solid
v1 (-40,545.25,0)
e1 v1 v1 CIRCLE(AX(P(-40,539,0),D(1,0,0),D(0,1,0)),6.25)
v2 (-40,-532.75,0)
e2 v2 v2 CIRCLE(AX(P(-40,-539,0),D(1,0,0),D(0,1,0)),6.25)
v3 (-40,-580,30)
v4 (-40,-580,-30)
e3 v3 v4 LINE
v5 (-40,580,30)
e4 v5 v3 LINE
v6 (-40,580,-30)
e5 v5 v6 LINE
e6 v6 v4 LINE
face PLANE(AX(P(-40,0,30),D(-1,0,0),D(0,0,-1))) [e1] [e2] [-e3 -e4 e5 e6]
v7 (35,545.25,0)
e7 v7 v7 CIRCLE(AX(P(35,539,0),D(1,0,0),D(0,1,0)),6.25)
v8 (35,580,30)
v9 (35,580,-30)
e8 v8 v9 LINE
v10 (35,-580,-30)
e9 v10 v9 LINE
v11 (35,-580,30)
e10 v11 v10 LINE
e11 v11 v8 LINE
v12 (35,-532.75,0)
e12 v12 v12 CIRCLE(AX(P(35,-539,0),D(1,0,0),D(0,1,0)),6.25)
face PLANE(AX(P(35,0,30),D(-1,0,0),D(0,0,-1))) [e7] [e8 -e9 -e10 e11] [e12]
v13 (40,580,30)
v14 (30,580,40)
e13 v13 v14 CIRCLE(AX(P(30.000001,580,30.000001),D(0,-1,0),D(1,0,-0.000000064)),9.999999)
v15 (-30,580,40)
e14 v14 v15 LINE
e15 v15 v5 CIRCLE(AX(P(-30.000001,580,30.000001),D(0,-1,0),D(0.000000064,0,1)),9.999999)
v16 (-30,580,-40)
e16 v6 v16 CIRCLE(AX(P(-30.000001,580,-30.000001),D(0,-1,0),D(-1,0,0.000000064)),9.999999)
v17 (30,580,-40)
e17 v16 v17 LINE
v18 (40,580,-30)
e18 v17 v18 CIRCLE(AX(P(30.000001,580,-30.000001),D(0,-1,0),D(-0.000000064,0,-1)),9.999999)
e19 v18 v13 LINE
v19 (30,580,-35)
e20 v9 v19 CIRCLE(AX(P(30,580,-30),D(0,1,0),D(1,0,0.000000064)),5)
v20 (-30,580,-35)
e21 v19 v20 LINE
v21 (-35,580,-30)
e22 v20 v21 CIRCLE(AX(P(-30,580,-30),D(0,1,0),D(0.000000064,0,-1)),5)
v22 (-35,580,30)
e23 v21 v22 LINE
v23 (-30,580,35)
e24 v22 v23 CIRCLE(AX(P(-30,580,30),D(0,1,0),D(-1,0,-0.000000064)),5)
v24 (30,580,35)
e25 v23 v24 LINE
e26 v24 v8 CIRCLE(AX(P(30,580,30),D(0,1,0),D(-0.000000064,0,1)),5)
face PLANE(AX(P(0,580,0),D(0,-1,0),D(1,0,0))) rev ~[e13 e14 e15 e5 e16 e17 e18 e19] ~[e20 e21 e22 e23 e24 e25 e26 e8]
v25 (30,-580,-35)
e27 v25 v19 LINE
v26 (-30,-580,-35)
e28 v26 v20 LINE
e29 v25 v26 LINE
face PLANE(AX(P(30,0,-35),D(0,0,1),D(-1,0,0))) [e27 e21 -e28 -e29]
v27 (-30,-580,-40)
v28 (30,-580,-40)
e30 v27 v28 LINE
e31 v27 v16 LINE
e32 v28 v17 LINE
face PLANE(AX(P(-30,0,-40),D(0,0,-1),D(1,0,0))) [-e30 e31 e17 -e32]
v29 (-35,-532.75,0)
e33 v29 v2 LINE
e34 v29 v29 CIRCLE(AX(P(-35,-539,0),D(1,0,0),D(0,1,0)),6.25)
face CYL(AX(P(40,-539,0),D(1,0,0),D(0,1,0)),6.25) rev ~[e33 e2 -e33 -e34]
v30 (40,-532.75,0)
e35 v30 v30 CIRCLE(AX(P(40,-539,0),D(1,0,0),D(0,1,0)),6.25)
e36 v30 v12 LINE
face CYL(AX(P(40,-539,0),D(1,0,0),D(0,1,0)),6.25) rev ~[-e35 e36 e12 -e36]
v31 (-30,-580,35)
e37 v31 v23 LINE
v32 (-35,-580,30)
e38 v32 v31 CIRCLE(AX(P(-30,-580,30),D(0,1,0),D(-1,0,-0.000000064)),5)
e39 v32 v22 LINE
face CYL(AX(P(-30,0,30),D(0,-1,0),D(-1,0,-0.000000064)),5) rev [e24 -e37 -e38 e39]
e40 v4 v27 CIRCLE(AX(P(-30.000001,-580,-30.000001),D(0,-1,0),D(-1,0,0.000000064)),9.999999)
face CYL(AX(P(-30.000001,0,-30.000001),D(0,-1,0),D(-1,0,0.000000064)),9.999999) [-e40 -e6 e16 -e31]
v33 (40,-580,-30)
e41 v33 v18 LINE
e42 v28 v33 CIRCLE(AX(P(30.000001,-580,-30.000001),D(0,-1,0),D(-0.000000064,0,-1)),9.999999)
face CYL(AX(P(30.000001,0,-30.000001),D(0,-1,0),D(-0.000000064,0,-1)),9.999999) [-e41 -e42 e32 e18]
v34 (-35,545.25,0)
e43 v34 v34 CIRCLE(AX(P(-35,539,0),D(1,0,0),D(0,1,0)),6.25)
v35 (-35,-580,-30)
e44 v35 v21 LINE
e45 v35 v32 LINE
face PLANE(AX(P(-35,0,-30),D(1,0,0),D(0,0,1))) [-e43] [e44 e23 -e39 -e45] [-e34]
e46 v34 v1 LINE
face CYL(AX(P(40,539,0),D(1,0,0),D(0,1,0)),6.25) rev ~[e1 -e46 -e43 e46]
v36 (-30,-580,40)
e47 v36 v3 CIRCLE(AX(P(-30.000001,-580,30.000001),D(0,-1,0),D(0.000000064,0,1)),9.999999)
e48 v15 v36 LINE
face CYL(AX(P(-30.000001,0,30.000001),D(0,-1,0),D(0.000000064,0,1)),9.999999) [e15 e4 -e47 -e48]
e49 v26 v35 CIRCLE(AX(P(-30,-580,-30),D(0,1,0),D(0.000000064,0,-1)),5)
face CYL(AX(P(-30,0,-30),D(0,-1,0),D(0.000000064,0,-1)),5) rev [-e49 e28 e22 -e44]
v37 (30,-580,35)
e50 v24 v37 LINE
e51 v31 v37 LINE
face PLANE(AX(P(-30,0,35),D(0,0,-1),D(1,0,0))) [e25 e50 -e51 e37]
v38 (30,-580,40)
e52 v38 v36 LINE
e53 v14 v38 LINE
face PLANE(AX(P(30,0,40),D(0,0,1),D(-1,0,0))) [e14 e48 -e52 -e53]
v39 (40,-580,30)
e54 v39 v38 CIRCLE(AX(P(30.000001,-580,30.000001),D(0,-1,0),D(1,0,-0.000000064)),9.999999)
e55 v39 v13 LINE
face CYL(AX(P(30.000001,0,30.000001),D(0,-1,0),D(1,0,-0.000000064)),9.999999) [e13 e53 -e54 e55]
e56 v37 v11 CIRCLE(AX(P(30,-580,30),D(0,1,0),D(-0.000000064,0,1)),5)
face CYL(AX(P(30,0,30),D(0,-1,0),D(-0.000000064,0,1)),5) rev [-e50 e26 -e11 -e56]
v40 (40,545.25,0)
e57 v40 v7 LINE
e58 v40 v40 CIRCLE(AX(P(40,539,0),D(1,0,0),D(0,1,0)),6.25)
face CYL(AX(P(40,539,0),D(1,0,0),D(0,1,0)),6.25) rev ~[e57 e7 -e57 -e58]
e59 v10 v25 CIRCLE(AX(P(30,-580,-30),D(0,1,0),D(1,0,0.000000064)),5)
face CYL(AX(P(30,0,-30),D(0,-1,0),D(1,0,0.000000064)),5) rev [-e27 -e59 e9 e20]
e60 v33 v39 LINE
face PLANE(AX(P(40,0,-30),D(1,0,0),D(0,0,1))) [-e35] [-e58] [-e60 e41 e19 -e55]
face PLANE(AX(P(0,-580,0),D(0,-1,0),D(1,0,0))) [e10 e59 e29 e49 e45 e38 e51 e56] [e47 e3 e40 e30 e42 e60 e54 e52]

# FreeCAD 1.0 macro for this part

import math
import FreeCAD as App
import Part
import Sketcher
from FreeCAD import Vector
Q = App.Units.Quantity

doc = App.newDocument("Part")
params = doc.addObject("Spreadsheet::Sheet", "Params")
for row, (alias, value) in enumerate([
    ("sketch1_radius", "9.999999 mm"),
    ("sketch1_radius2", "5 mm"),
    ("sketch1_width", "60 mm"),
    ("pad1_length", "1160 mm"),
    ("sketch2_diameter", "12.5 mm"),
], start=1):
    params.set(f"A{row}", alias)
    params.set(f"B{row}", "=" + value)
    params.setAlias(f"B{row}", alias)

body = doc.addObject("PartDesign::Body", "Body")

# Sketch on XZ plane
sketch1 = body.newObject("Sketcher::SketchObject", "Sketch")
sketch1.AttachmentSupport = (doc.getObject("XZ_Plane"), [""])
sketch1.MapMode = "FlatFace"
sketch1.addGeometry(Part.ArcOfCircle(Part.Circle(Vector(30, 30, 0), Vector(0, 0, 1), 10), math.radians(0), math.radians(90)), False)
sketch1.addGeometry(Part.LineSegment(Vector(30, 40, 0), Vector(-30, 40, 0)), False)
sketch1.addGeometry(Part.ArcOfCircle(Part.Circle(Vector(-30, 30, 0), Vector(0, 0, 1), 10), math.radians(90), math.radians(180)), False)
sketch1.addGeometry(Part.LineSegment(Vector(-40, 30, 0), Vector(-40, -30, 0)), False)
sketch1.addGeometry(Part.ArcOfCircle(Part.Circle(Vector(-30, -30, 0), Vector(0, 0, 1), 10), math.radians(180), math.radians(270)), False)
sketch1.addGeometry(Part.LineSegment(Vector(-30, -40, 0), Vector(30, -40, 0)), False)
sketch1.addGeometry(Part.ArcOfCircle(Part.Circle(Vector(30, -30, 0), Vector(0, 0, 1), 10), math.radians(-90), math.radians(0)), False)
sketch1.addGeometry(Part.LineSegment(Vector(40, -30, 0), Vector(40, 30, 0)), False)
sketch1.addGeometry(Part.LineSegment(Vector(-30, 35, 0), Vector(30, 35, 0)), False)
sketch1.addGeometry(Part.ArcOfCircle(Part.Circle(Vector(30, 30, 0), Vector(0, 0, 1), 5), math.radians(0), math.radians(90)), False)
sketch1.addGeometry(Part.LineSegment(Vector(35, 30, 0), Vector(35, -30, 0)), False)
sketch1.addGeometry(Part.ArcOfCircle(Part.Circle(Vector(30, -30, 0), Vector(0, 0, 1), 5), math.radians(-90), math.radians(0)), False)
sketch1.addGeometry(Part.LineSegment(Vector(30, -35, 0), Vector(-30, -35, 0)), False)
sketch1.addGeometry(Part.ArcOfCircle(Part.Circle(Vector(-30, -30, 0), Vector(0, 0, 1), 5), math.radians(180), math.radians(270)), False)
sketch1.addGeometry(Part.LineSegment(Vector(-35, -30, 0), Vector(-35, 30, 0)), False)
sketch1.addGeometry(Part.ArcOfCircle(Part.Circle(Vector(-30, 30, 0), Vector(0, 0, 1), 5), math.radians(90), math.radians(180)), False)
sketch1.addConstraint(Sketcher.Constraint("Tangent", 0, 2, 1, 1))
sketch1.addConstraint(Sketcher.Constraint("Tangent", 1, 2, 2, 1))
sketch1.addConstraint(Sketcher.Constraint("Tangent", 2, 2, 3, 1))
sketch1.addConstraint(Sketcher.Constraint("Tangent", 3, 2, 4, 1))
sketch1.addConstraint(Sketcher.Constraint("Tangent", 4, 2, 5, 1))
sketch1.addConstraint(Sketcher.Constraint("Tangent", 5, 2, 6, 1))
sketch1.addConstraint(Sketcher.Constraint("Tangent", 6, 2, 7, 1))
sketch1.addConstraint(Sketcher.Constraint("Tangent", 7, 2, 0, 1))
sketch1.addConstraint(Sketcher.Constraint("Tangent", 8, 2, 9, 2))
sketch1.addConstraint(Sketcher.Constraint("Tangent", 9, 1, 10, 1))
sketch1.addConstraint(Sketcher.Constraint("Tangent", 10, 2, 11, 2))
sketch1.addConstraint(Sketcher.Constraint("Tangent", 11, 1, 12, 1))
sketch1.addConstraint(Sketcher.Constraint("Tangent", 12, 2, 13, 2))
sketch1.addConstraint(Sketcher.Constraint("Tangent", 13, 1, 14, 1))
sketch1.addConstraint(Sketcher.Constraint("Tangent", 14, 2, 15, 2))
sketch1.addConstraint(Sketcher.Constraint("Tangent", 15, 1, 8, 1))
sketch1.addConstraint(Sketcher.Constraint("Horizontal", 1))
sketch1.addConstraint(Sketcher.Constraint("Vertical", 3))
sketch1.addConstraint(Sketcher.Constraint("Horizontal", 5))
sketch1.addConstraint(Sketcher.Constraint("Vertical", 7))
sketch1.addConstraint(Sketcher.Constraint("Horizontal", 8))
sketch1.addConstraint(Sketcher.Constraint("Vertical", 10))
sketch1.addConstraint(Sketcher.Constraint("Horizontal", 12))
sketch1.addConstraint(Sketcher.Constraint("Vertical", 14))
sketch1.addConstraint(Sketcher.Constraint("Coincident", 9, 3, 0, 3))
sketch1.addConstraint(Sketcher.Constraint("Coincident", 11, 3, 6, 3))
sketch1.addConstraint(Sketcher.Constraint("Coincident", 13, 3, 4, 3))
sketch1.addConstraint(Sketcher.Constraint("Equal", 0, 2))
sketch1.addConstraint(Sketcher.Constraint("Equal", 2, 4))
sketch1.addConstraint(Sketcher.Constraint("Equal", 4, 6))
sketch1.addConstraint(Sketcher.Constraint("Equal", 13, 15))
sketch1.addConstraint(Sketcher.Constraint("Symmetric", 0, 3, 4, 3, -1, 1))
sketch1.addConstraint(Sketcher.Constraint("Equal", 12, 3))
sketch1.addConstraint(Sketcher.Constraint("Radius", 0, Q("9.999999 mm")))
sketch1.addConstraint(Sketcher.Constraint("Radius", 9, Q("5 mm")))
sketch1.addConstraint(Sketcher.Constraint("DistanceX", 1, 2, 1, 1, Q("60 mm")))
sketch1.setExpression("Constraints[33]", "Params.sketch1_radius")
sketch1.setExpression("Constraints[34]", "Params.sketch1_radius2")
sketch1.setExpression("Constraints[35]", "Params.sketch1_width")
pad1 = body.newObject("PartDesign::Pad", "Pad")
pad1.Profile = sketch1
pad1.setExpression("Length", "Params.pad1_length")
pad1.Midplane = True

# Sketch on YZ plane
sketch2 = body.newObject("Sketcher::SketchObject", "Sketch001")
sketch2.AttachmentSupport = (doc.getObject("YZ_Plane"), [""])
sketch2.MapMode = "FlatFace"
sketch2.AttachmentOffset = App.Placement(Vector(0, 0, 40), App.Rotation())
sketch2.addGeometry(Part.Circle(Vector(-539, 0, 0), Vector(0, 0, 1), 6), False)
sketch2.addGeometry(Part.Circle(Vector(539, 0, 0), Vector(0, 0, 1), 6), False)
sketch2.addConstraint(Sketcher.Constraint("Equal", 0, 1))
sketch2.addConstraint(Sketcher.Constraint("Symmetric", 0, 3, 1, 3, -1, 1))
sketch2.addConstraint(Sketcher.Constraint("PointOnObject", 0, 3, -1))
sketch2.addConstraint(Sketcher.Constraint("Diameter", 0, Q("12.5 mm")))
sketch2.addConstraint(Sketcher.Constraint("DistanceX", 0, 3, -1, 1, Q("539 mm")))
sketch2.setExpression("Constraints[3]", "Params.sketch2_diameter")
pocket1 = body.newObject("PartDesign::Pocket", "Pocket")
pocket1.Profile = sketch2
pocket1.Type = "ThroughAll"

doc.recompute()
